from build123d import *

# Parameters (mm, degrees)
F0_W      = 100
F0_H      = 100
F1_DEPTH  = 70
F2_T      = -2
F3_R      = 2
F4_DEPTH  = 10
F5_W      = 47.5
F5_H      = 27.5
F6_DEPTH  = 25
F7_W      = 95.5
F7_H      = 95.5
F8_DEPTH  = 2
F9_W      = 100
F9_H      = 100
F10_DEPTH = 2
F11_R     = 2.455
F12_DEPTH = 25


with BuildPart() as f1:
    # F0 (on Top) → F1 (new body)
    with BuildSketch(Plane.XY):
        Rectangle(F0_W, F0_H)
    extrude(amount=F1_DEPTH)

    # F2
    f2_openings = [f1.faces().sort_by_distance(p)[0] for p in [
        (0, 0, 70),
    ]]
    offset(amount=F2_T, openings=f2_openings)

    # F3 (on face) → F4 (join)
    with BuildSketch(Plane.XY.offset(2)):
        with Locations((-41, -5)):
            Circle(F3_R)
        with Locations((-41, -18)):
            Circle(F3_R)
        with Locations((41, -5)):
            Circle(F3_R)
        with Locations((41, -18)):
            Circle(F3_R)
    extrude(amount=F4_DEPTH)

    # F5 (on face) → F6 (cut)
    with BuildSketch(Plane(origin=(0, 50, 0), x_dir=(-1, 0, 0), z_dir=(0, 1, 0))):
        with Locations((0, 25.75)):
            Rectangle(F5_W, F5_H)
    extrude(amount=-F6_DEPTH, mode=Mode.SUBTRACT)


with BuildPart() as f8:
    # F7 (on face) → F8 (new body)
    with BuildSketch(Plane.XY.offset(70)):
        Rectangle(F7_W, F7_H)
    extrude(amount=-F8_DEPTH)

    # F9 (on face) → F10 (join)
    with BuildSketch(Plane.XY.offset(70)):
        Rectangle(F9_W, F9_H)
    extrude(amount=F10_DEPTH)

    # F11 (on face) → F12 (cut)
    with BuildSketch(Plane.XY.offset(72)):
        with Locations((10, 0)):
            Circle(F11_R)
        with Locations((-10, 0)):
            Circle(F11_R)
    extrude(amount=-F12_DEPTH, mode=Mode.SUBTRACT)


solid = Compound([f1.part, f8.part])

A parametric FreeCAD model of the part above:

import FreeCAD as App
import Part
import Sketcher

V = App.Vector


def faces_at(feature, points):
    """Names of the faces that lie closest to the given points."""
    faces = feature.Shape.Faces
    near = lambda p: min(range(len(faces)), key=lambda i: faces[i].distToShape(Part.Vertex(*p))[0])
    return sorted({f"Face{near(p) + 1}" for p in points})

doc = App.newDocument("Part")
body = doc.addObject("PartDesign::Body", "Body")

# Sketch on XY plane
sketch1 = body.newObject("Sketcher::SketchObject", "Sketch")
sketch1.AttachmentSupport = (doc.getObject("XY_Plane"), [""])
sketch1.MapMode = "FlatFace"
sketch1.addGeometry([
    Part.LineSegment(V(-50, 50, 0), V(-50, -50, 0)),
    Part.LineSegment(V(-50, -50, 0), V(50, -50, 0)),
    Part.LineSegment(V(50, -50, 0), V(50, 50, 0)),
    Part.LineSegment(V(50, 50, 0), V(-50, 50, 0)),
], False)
sketch1.addConstraint([
    Sketcher.Constraint("Coincident", 0, 2, 1, 1),
    Sketcher.Constraint("Coincident", 1, 2, 2, 1),
    Sketcher.Constraint("Coincident", 2, 2, 3, 1),
    Sketcher.Constraint("Coincident", 3, 2, 0, 1),
    Sketcher.Constraint("Vertical", 0),
    Sketcher.Constraint("Horizontal", 1),
    Sketcher.Constraint("Vertical", 2),
    Sketcher.Constraint("Horizontal", 3),
    Sketcher.Constraint("Symmetric", 0, 2, 2, 2, -1, 1),
    Sketcher.Constraint("Equal", 3, 0),
    Sketcher.Constraint("DistanceX", 1, 1, 1, 2, 100.0),
])
pad1 = body.newObject("PartDesign::Pad", "Pad")
pad1.Profile = sketch1
pad1.Length = 70
doc.recompute()

thickness = body.newObject("PartDesign::Thickness", "Thickness")
thickness.Base = (pad1, faces_at(pad1, [(0, 0, 70)]))
thickness.Value = 2
thickness.Reversed = True
thickness.Join = "Arc"

# Sketch on XY plane
sketch2 = body.newObject("Sketcher::SketchObject", "Sketch001")
sketch2.AttachmentSupport = (doc.getObject("XY_Plane"), [""])
sketch2.MapMode = "FlatFace"
sketch2.AttachmentOffset = App.Placement(V(0, 0, 2), App.Rotation())
sketch2.addGeometry([
    Part.Circle(V(-41, -5, 0), V(0, 0, 1), 2),
    Part.Circle(V(-41, -18, 0), V(0, 0, 1), 2),
    Part.Circle(V(41, -5, 0), V(0, 0, 1), 2),
    Part.Circle(V(41, -18, 0), V(0, 0, 1), 2),
], False)
sketch2.addConstraint([
    Sketcher.Constraint("Equal", 0, 1),
    Sketcher.Constraint("Equal", 1, 2),
    Sketcher.Constraint("Equal", 2, 3),
    Sketcher.Constraint("Symmetric", 0, 3, 2, 3, -2),
    Sketcher.Constraint("Symmetric", 1, 3, 3, 3, -2),
    Sketcher.Constraint("Vertical", 0, 3, 1, 3),
    Sketcher.Constraint("Diameter", 0, 4.0),
    Sketcher.Constraint("DistanceX", 0, 3, -1, 1, 41.0),
    Sketcher.Constraint("DistanceY", 0, 3, -1, 1, 5.0),
    Sketcher.Constraint("DistanceY", 1, 3, -1, 1, 18.0),
])
pad2 = body.newObject("PartDesign::Pad", "Pad001")
pad2.Profile = sketch2
pad2.Length = 10

# Sketch on XZ plane
sketch3 = body.newObject("Sketcher::SketchObject", "Sketch002")
sketch3.AttachmentSupport = (doc.getObject("XZ_Plane"), [""])
sketch3.MapMode = "FlatFace"
sketch3.AttachmentOffset = App.Placement(V(0, 0, -50), App.Rotation())
sketch3.addGeometry([
    Part.LineSegment(V(24, 40, 0), V(24, 12, 0)),
    Part.LineSegment(V(24, 12, 0), V(-24, 12, 0)),
    Part.LineSegment(V(-24, 12, 0), V(-24, 40, 0)),
    Part.LineSegment(V(-24, 40, 0), V(24, 40, 0)),
], False)
sketch3.addConstraint([
    Sketcher.Constraint("Coincident", 0, 2, 1, 1),
    Sketcher.Constraint("Coincident", 1, 2, 2, 1),
    Sketcher.Constraint("Coincident", 2, 2, 3, 1),
    Sketcher.Constraint("Coincident", 3, 2, 0, 1),
    Sketcher.Constraint("Vertical", 0),
    Sketcher.Constraint("Horizontal", 1),
    Sketcher.Constraint("Vertical", 2),
    Sketcher.Constraint("Horizontal", 3),
    Sketcher.Constraint("DistanceX", 1, 2, 1, 1, 47.5),
    Sketcher.Constraint("DistanceY", 0, 2, 0, 1, 27.5),
    Sketcher.Constraint("DistanceY", -1, 1, 0, 2, 12.0),
    Sketcher.Constraint("DistanceX", -1, 1, 0, 2, 23.75),
])
pocket1 = body.newObject("PartDesign::Pocket", "Pocket")
pocket1.Profile = sketch3
pocket1.Length = 25
pocket1.Reversed = True
body2 = doc.addObject("PartDesign::Body", "Body001")

# Sketch on XY plane
sketch4 = body2.newObject("Sketcher::SketchObject", "Sketch003")
sketch4.AttachmentSupport = (doc.getObject("XY_Plane001"), [""])
sketch4.MapMode = "FlatFace"
sketch4.AttachmentOffset = App.Placement(V(0, 0, 70), App.Rotation())
sketch4.addGeometry([
    Part.LineSegment(V(-48, 48, 0), V(-48, -48, 0)),
    Part.LineSegment(V(-48, -48, 0), V(48, -48, 0)),
    Part.LineSegment(V(48, -48, 0), V(48, 48, 0)),
    Part.LineSegment(V(48, 48, 0), V(-48, 48, 0)),
], False)
sketch4.addConstraint([
    Sketcher.Constraint("Coincident", 0, 2, 1, 1),
    Sketcher.Constraint("Coincident", 1, 2, 2, 1),
    Sketcher.Constraint("Coincident", 2, 2, 3, 1),
    Sketcher.Constraint("Coincident", 3, 2, 0, 1),
    Sketcher.Constraint("Vertical", 0),
    Sketcher.Constraint("Horizontal", 1),
    Sketcher.Constraint("Vertical", 2),
    Sketcher.Constraint("Horizontal", 3),
    Sketcher.Constraint("Symmetric", 0, 2, 2, 2, -1, 1),
    Sketcher.Constraint("Equal", 3, 0),
    Sketcher.Constraint("DistanceX", 1, 1, 1, 2, 95.5),
])
pad3 = body2.newObject("PartDesign::Pad", "Pad002")
pad3.Profile = sketch4
pad3.Length = 2
pad3.Reversed = True

# Sketch on XY plane
sketch5 = body2.newObject("Sketcher::SketchObject", "Sketch004")
sketch5.AttachmentSupport = (doc.getObject("XY_Plane001"), [""])
sketch5.MapMode = "FlatFace"
sketch5.AttachmentOffset = App.Placement(V(0, 0, 70), App.Rotation())
sketch5.addGeometry([
    Part.LineSegment(V(-50, 50, 0), V(-50, -50, 0)),
    Part.LineSegment(V(-50, -50, 0), V(50, -50, 0)),
    Part.LineSegment(V(50, -50, 0), V(50, 50, 0)),
    Part.LineSegment(V(50, 50, 0), V(-50, 50, 0)),
], False)
sketch5.addConstraint([
    Sketcher.Constraint("Coincident", 0, 2, 1, 1),
    Sketcher.Constraint("Coincident", 1, 2, 2, 1),
    Sketcher.Constraint("Coincident", 2, 2, 3, 1),
    Sketcher.Constraint("Coincident", 3, 2, 0, 1),
    Sketcher.Constraint("Vertical", 0),
    Sketcher.Constraint("Horizontal", 1),
    Sketcher.Constraint("Vertical", 2),
    Sketcher.Constraint("Horizontal", 3),
    Sketcher.Constraint("Symmetric", 0, 2, 2, 2, -1, 1),
    Sketcher.Constraint("Equal", 3, 0),
    Sketcher.Constraint("DistanceX", 1, 1, 1, 2, 100.0),
])
pad4 = body2.newObject("PartDesign::Pad", "Pad003")
pad4.Profile = sketch5
pad4.Length = 2

# Sketch on XY plane
sketch6 = body2.newObject("Sketcher::SketchObject", "Sketch005")
sketch6.AttachmentSupport = (doc.getObject("XY_Plane001"), [""])
sketch6.MapMode = "FlatFace"
sketch6.AttachmentOffset = App.Placement(V(0, 0, 72), App.Rotation())
sketch6.addGeometry([
    Part.Circle(V(10, 0, 0), V(0, 0, 1), 2.5),
    Part.Circle(V(-10, 0, 0), V(0, 0, 1), 2.5),
], False)
sketch6.addConstraint([
    Sketcher.Constraint("Equal", 0, 1),
    Sketcher.Constraint("Symmetric", 0, 3, 1, 3, -1, 1),
    Sketcher.Constraint("PointOnObject", 0, 3, -1),
    Sketcher.Constraint("Diameter", 0, 4.91),
    Sketcher.Constraint("DistanceX", -1, 1, 0, 3, 10.0),
])
pocket2 = body2.newObject("PartDesign::Pocket", "Pocket001")
pocket2.Profile = sketch6
pocket2.Length = 25

doc.recompute()
